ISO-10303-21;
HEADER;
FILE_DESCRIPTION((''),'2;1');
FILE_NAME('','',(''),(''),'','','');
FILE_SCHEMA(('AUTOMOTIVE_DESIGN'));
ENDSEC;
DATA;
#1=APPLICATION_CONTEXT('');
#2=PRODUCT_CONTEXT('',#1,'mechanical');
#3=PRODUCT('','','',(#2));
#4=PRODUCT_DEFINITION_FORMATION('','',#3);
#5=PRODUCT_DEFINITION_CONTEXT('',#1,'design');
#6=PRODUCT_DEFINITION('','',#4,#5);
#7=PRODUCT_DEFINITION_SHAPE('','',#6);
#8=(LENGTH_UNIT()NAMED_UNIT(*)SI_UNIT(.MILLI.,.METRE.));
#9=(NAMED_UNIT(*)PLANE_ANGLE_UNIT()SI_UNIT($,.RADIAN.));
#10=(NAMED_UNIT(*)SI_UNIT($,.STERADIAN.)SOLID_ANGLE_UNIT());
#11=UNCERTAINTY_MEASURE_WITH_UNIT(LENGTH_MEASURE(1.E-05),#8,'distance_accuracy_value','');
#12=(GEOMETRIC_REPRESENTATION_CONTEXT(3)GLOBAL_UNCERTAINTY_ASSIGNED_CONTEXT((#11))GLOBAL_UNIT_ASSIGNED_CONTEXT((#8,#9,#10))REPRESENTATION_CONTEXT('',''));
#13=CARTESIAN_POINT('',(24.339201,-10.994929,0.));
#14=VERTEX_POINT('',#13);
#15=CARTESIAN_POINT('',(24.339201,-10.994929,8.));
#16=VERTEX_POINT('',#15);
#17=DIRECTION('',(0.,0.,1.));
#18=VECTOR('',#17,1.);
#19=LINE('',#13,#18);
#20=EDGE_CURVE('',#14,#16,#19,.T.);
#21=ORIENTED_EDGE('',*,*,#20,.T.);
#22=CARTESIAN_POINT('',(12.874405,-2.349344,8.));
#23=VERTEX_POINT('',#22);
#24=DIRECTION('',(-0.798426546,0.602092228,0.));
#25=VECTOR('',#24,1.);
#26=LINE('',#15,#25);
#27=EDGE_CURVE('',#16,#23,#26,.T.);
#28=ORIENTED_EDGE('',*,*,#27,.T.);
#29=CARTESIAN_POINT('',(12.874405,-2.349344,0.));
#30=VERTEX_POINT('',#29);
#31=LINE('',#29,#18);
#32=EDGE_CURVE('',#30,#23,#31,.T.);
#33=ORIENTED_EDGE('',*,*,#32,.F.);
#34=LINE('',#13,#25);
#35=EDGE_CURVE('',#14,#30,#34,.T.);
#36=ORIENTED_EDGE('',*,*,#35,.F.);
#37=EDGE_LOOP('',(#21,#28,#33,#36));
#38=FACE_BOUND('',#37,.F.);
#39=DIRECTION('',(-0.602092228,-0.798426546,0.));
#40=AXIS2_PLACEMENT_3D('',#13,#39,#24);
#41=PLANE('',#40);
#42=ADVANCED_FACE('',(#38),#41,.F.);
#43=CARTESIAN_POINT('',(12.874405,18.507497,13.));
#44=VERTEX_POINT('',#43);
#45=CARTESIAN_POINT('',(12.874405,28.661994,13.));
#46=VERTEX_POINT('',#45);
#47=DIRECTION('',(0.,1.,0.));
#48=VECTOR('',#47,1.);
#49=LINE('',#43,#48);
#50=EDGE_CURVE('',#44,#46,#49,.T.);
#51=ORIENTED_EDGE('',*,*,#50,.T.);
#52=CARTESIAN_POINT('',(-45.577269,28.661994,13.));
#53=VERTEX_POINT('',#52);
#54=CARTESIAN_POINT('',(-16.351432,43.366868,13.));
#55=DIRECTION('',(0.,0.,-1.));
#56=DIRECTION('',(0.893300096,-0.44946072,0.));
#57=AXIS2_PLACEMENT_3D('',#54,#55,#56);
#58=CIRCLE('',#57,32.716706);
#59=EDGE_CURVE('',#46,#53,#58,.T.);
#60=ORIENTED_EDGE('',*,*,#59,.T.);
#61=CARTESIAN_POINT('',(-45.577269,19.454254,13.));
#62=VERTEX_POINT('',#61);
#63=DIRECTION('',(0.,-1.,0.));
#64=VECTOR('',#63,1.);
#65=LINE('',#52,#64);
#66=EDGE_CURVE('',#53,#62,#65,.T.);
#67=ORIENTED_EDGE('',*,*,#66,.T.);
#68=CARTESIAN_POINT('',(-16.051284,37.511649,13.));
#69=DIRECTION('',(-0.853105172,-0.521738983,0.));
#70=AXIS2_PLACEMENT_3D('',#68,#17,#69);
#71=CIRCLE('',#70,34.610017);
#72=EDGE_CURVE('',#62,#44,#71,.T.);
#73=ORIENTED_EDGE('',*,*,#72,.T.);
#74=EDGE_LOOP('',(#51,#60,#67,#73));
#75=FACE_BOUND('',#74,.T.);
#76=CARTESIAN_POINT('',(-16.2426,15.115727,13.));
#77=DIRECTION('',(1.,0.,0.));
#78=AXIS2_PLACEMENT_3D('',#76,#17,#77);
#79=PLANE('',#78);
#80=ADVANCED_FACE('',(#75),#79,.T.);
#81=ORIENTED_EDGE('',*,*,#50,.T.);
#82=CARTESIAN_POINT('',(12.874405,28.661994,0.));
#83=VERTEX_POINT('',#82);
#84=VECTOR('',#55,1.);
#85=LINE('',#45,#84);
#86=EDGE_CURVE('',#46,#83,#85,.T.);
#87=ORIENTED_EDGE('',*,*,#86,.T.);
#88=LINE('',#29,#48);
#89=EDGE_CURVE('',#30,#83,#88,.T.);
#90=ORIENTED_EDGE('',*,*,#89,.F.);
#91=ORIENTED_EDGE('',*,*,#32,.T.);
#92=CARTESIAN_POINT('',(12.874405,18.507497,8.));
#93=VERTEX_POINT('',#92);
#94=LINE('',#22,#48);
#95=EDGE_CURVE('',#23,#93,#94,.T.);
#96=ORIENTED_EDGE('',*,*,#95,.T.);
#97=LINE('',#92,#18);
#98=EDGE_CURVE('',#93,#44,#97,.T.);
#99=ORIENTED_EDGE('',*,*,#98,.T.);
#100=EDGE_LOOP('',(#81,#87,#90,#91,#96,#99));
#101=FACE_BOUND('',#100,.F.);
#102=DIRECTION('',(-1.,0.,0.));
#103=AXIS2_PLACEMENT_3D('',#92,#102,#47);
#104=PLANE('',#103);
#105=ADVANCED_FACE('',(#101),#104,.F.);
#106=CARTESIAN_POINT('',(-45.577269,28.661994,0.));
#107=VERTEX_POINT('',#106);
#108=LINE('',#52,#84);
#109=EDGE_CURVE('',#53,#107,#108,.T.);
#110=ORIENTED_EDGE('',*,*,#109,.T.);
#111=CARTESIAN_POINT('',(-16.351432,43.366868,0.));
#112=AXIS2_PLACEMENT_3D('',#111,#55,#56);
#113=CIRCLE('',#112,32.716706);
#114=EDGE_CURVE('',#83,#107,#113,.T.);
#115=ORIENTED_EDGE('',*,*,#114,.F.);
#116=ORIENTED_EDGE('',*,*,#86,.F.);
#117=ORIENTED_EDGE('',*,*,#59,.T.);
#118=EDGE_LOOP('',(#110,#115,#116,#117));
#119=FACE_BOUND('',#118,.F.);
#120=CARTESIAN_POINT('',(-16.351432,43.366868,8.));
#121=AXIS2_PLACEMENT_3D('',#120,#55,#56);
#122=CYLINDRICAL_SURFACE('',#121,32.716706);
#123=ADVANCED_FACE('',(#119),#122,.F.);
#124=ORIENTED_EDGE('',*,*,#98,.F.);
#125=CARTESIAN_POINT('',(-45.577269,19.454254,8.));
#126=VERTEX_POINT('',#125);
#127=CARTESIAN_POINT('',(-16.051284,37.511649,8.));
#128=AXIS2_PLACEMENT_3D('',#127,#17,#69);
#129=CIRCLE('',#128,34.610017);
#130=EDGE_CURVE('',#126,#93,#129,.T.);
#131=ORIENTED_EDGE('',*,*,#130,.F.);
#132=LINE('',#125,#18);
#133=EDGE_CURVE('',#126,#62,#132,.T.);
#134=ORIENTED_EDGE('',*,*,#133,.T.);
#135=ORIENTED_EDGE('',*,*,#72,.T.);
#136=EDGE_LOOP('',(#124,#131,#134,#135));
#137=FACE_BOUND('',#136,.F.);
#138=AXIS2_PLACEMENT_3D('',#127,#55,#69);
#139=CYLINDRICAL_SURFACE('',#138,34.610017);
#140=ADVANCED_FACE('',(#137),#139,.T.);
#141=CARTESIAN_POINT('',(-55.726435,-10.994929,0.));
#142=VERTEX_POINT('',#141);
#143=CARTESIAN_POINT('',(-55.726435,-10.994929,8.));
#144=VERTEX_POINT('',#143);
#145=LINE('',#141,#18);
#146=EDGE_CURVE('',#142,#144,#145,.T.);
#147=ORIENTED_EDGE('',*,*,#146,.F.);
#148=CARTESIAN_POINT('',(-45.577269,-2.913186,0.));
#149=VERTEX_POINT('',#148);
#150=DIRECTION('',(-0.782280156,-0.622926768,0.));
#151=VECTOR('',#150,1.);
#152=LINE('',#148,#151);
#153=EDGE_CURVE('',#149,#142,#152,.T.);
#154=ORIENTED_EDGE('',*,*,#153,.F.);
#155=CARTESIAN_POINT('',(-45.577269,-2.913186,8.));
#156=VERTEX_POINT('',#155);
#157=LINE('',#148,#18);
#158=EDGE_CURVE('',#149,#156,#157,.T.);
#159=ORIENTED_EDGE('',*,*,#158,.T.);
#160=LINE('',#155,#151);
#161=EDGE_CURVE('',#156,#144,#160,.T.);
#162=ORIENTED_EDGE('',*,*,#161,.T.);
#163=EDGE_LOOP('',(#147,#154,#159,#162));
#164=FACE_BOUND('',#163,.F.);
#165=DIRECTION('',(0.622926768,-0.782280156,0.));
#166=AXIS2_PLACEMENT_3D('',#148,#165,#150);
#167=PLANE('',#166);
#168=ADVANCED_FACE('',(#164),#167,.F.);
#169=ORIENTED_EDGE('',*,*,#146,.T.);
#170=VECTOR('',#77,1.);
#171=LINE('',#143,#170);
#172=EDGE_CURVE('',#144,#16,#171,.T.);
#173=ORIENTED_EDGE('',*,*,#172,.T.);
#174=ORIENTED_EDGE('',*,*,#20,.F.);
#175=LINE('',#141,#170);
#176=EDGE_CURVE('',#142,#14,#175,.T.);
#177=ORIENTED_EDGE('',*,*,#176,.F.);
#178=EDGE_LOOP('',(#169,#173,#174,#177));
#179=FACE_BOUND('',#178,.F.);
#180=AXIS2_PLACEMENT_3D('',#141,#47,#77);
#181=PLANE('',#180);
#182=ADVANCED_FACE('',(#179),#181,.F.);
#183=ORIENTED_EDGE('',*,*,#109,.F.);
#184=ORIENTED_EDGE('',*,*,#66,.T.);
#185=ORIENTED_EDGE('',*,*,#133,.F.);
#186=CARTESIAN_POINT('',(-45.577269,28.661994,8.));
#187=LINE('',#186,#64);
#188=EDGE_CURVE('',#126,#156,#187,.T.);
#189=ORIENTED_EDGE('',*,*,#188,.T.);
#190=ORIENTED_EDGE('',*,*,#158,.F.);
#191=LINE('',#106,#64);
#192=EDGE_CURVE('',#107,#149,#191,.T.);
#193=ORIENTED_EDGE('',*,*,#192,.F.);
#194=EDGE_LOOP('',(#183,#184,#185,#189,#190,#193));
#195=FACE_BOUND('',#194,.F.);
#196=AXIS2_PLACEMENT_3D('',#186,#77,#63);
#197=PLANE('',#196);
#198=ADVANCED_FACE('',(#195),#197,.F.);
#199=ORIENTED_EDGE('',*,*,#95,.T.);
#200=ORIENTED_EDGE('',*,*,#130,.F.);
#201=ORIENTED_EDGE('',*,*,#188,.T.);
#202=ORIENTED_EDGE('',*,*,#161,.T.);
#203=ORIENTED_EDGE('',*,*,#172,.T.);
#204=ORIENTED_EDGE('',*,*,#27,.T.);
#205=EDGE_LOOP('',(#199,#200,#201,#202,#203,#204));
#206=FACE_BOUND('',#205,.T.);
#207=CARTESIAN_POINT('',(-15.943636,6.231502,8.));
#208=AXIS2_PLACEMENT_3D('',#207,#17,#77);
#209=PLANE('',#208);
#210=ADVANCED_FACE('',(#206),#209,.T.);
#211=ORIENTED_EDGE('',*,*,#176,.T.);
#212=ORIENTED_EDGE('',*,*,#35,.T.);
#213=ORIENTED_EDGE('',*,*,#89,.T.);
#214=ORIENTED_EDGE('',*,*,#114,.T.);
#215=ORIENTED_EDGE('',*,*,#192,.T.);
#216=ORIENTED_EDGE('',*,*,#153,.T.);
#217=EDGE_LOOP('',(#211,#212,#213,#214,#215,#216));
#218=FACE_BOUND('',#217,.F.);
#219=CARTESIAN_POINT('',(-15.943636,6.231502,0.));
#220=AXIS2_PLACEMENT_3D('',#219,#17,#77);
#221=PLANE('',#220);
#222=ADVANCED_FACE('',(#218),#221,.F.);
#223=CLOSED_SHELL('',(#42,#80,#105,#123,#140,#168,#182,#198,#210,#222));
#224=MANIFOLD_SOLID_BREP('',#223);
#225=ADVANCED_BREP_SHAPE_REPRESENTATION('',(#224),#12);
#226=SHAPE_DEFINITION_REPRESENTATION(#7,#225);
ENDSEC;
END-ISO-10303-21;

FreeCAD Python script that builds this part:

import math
import FreeCAD as App
import Part
import Sketcher
Q = App.Units.Quantity


def add_polygon(sketch, points):
    """Adds a closed chain of lines whose ends are joined by coincident constraints."""
    first, n = sketch.GeometryCount, len(points)
    for a, b in zip(points, points[1:] + points[:1]):
        sketch.addGeometry(Part.LineSegment(App.Vector(*a, 0), App.Vector(*b, 0)), False)
    for i in range(n):
        sketch.addConstraint(Sketcher.Constraint("Coincident", first + i, 2, first + (i + 1) % n, 1))

doc = App.newDocument("Part")
params = doc.addObject("Spreadsheet::Sheet", "Params")
for row, (alias, value) in enumerate([
    ("pad1_length", "8 mm"),
    ("pocket1_length", "25 mm"),
    ("pocket2_length", "25 mm"),
    ("pad2_length", "5 mm"),
], start=1):
    params.set(f"A{row}", alias)
    params.set(f"B{row}", "=" + value)
    params.setAlias(f"B{row}", alias)

body = doc.addObject("PartDesign::Body", "Body")

# Sketch on XY plane
sketch1 = body.newObject("Sketcher::SketchObject", "Sketch")
sketch1.AttachmentSupport = (doc.getObject("XY_Plane"), [""])
sketch1.MapMode = "FlatFace"
add_polygon(sketch1, [(-45.577269, 28.661994), (-45.577269, -2.913186), (-55.726435, -10.994929), (24.339201, -10.994929), (12.874405, -2.349344), (12.874405, 28.661994)])  # lines 0-5
sketch1.addConstraint(Sketcher.Constraint("Vertical", 0))
sketch1.addConstraint(Sketcher.Constraint("Horizontal", 2))
sketch1.addConstraint(Sketcher.Constraint("Vertical", 4))
sketch1.addConstraint(Sketcher.Constraint("Horizontal", 5))
sketch1.addConstraint(Sketcher.Constraint("DistanceY", 0, 2, 0, 1, Q("31.57518 mm")))
sketch1.addConstraint(Sketcher.Constraint("DistanceX", -1, 1, 2, 2, Q("24.339201 mm")))
sketch1.addConstraint(Sketcher.Constraint("DistanceX", 2, 1, 2, 2, Q("80.065636 mm")))
sketch1.addConstraint(Sketcher.Constraint("DistanceX", 5, 2, 5, 1, Q("58.451674 mm")))
sketch1.addConstraint(Sketcher.Constraint("DistanceY", 4, 1, 4, 2, Q("31.011338 mm")))
sketch1.addConstraint(Sketcher.Constraint("DistanceX", 0, 2, -1, 1, Q("45.577269 mm")))
sketch1.addConstraint(Sketcher.Constraint("DistanceY", 1, 2, -1, 1, Q("10.994929 mm")))
sketch1.addConstraint(Sketcher.Constraint("Distance", 1, Q("12.973825 mm")))
pad1 = body.newObject("PartDesign::Pad", "Pad")
pad1.Profile = sketch1
pad1.setExpression("Length", "Params.pad1_length")

# Sketch on XY plane
sketch2 = body.newObject("Sketcher::SketchObject", "Sketch001")
sketch2.AttachmentSupport = (doc.getObject("XY_Plane"), [""])
sketch2.MapMode = "FlatFace"
sketch2.addGeometry(Part.LineSegment(App.Vector(-45.577269, 28.661994, 0), App.Vector(12.874405, 28.661994, 0)), False)
sketch2.addGeometry(Part.ArcOfCircle(Part.Circle(App.Vector(-16.351432, 43.366868, 0), App.Vector(0, 0, 1), 32.716706), math.radians(-153.29091), math.radians(-26.70909)), False)
sketch2.addConstraint(Sketcher.Constraint("Coincident", 0, 1, 1, 1))
sketch2.addConstraint(Sketcher.Constraint("Coincident", 1, 2, 0, 2))
sketch2.addConstraint(Sketcher.Constraint("Horizontal", 0))
sketch2.addConstraint(Sketcher.Constraint("Radius", 1, Q("32.716706 mm")))
sketch2.addConstraint(Sketcher.Constraint("DistanceX", 0, 1, 0, 2, Q("58.451674 mm")))
sketch2.addConstraint(Sketcher.Constraint("DistanceX", 1, 3, -1, 1, Q("16.351432 mm")))
sketch2.addConstraint(Sketcher.Constraint("DistanceY", -1, 1, 1, 3, Q("43.366868 mm")))
pocket1 = body.newObject("PartDesign::Pocket", "Pocket")
pocket1.Profile = sketch2
pocket1.setExpression("Length", "Params.pocket1_length")
pocket1.Reversed = True
pocket2 = body.newObject("PartDesign::Pocket", "Pocket001")
pocket2.Profile = sketch2
pocket2.setExpression("Length", "Params.pocket2_length")
pocket2.Reversed = True

# Sketch on XY plane
sketch3 = body.newObject("Sketcher::SketchObject", "Sketch002")
sketch3.AttachmentSupport = (doc.getObject("XY_Plane"), [""])
sketch3.MapMode = "FlatFace"
sketch3.AttachmentOffset = App.Placement(App.Vector(0, 0, 8), App.Rotation())
sketch3.addGeometry(Part.LineSegment(App.Vector(-45.577269, 28.661994, 0), App.Vector(-45.577269, 19.454254, 0)), False)
sketch3.addGeometry(Part.ArcOfCircle(Part.Circle(App.Vector(-16.051284, 37.511649, 0), App.Vector(0, 0, 1), 34.610017), math.radians(-148.551029), math.radians(-33.304879)), False)
sketch3.addGeometry(Part.LineSegment(App.Vector(12.874405, 18.507497, 0), App.Vector(12.874405, 28.661994, 0)), False)
sketch3.addGeometry(Part.ArcOfCircle(Part.Circle(App.Vector(-16.351432, 43.366868, 0), App.Vector(0, 0, 1), 32.716706), math.radians(-153.29091), math.radians(-26.70909)), False)
sketch3.addConstraint(Sketcher.Constraint("Coincident", 0, 2, 1, 1))
sketch3.addConstraint(Sketcher.Constraint("Coincident", 1, 2, 2, 1))
sketch3.addConstraint(Sketcher.Constraint("Coincident", 2, 2, 3, 2))
sketch3.addConstraint(Sketcher.Constraint("Coincident", 3, 1, 0, 1))
sketch3.addConstraint(Sketcher.Constraint("Vertical", 0))
sketch3.addConstraint(Sketcher.Constraint("Vertical", 2))
sketch3.addConstraint(Sketcher.Constraint("Horizontal", 2, 2, 3, 1))
sketch3.addConstraint(Sketcher.Constraint("Radius", 1, Q("34.610017 mm")))
sketch3.addConstraint(Sketcher.Constraint("Radius", 3, Q("32.716706 mm")))
sketch3.addConstraint(Sketcher.Constraint("DistanceY", 0, 2, 0, 1, Q("9.20774 mm")))
sketch3.addConstraint(Sketcher.Constraint("DistanceY", 2, 1, 2, 2, Q("10.154497 mm")))
sketch3.addConstraint(Sketcher.Constraint("DistanceY", -1, 1, 1, 3, Q("37.511649 mm")))
sketch3.addConstraint(Sketcher.Constraint("DistanceX", 3, 3, -1, 1, Q("16.351432 mm")))
sketch3.addConstraint(Sketcher.Constraint("DistanceY", -1, 1, 3, 3, Q("43.366868 mm")))
pad2 = body.newObject("PartDesign::Pad", "Pad001")
pad2.Profile = sketch3
pad2.setExpression("Length", "Params.pad2_length")

doc.recompute()
